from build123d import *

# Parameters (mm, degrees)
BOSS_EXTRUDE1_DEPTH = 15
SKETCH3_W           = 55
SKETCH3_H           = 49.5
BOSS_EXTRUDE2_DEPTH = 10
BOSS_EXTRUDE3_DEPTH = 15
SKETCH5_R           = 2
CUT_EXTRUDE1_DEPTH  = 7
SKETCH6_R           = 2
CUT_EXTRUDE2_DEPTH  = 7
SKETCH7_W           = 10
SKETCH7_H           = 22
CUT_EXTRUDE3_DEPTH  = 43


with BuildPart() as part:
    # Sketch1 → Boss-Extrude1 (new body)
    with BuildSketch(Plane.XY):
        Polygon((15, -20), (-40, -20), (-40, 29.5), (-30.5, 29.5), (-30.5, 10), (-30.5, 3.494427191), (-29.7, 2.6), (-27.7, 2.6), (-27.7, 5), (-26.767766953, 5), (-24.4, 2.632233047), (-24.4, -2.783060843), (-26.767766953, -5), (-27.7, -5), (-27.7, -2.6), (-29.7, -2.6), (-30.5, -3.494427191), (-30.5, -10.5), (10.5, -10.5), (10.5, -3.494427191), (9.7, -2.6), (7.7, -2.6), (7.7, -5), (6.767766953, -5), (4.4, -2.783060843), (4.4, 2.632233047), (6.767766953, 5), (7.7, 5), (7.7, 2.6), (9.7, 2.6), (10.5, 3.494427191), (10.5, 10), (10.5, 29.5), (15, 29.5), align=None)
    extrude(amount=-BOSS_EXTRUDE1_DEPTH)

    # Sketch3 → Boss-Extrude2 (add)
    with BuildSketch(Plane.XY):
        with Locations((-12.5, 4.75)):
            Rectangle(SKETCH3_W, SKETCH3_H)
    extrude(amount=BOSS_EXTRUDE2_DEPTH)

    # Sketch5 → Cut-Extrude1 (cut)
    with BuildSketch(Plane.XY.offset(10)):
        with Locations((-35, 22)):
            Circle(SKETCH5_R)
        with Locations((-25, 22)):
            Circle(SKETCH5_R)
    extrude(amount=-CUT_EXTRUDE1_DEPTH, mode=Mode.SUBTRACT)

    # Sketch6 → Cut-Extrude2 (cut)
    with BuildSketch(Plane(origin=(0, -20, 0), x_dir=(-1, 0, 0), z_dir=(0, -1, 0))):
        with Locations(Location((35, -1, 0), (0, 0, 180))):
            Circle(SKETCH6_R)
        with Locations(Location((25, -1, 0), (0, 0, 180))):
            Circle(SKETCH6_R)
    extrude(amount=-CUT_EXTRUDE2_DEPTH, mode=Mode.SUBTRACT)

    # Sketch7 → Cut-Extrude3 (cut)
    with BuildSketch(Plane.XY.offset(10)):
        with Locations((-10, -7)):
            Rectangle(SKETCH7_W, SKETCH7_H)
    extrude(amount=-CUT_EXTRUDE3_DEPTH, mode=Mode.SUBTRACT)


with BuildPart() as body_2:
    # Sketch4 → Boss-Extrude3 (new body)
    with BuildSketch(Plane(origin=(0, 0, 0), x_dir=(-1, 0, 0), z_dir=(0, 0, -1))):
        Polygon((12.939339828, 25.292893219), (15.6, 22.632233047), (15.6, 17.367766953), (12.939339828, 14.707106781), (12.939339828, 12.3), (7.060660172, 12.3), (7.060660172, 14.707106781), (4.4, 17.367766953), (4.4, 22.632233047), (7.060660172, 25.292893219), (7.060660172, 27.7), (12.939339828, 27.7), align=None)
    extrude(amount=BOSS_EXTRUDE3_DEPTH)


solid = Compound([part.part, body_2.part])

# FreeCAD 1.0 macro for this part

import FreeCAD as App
import Part
import Sketcher
from FreeCAD import Vector

doc = App.newDocument("Part")
params = doc.addObject("Spreadsheet::Sheet", "Params")
for row, (alias, value) in enumerate([
    ("sketch1_width", "55 mm"),
    ("sketch1_width2", "2 mm"),
    ("sketch1_width3", "41 mm"),
    ("sketch1_width4", "4.5 mm"),
    ("sketch1_height", "49.5 mm"),
    ("pad1_length", "15 mm"),
    ("sketch2_width", "55 mm"),
    ("sketch2_height", "49.5 mm"),
    ("pad2_length", "10 mm"),
    ("sketch3_diameter", "4 mm"),
    ("pocket1_length", "7 mm"),
    ("sketch4_diameter", "4 mm"),
    ("pocket2_length", "7 mm"),
    ("sketch5_width", "10 mm"),
    ("sketch5_height", "22 mm"),
    ("pocket3_length", "43 mm"),
    ("pad3_length", "15 mm"),
], start=1):
    params.set(f"A{row}", alias)
    params.set(f"B{row}", "=" + value)
    params.setAlias(f"B{row}", alias)

body = doc.addObject("PartDesign::Body", "Body")

sketch1 = body.newObject("Sketcher::SketchObject", "Sketch")
sketch1.AttachmentSupport = (doc.getObject("XY_Plane"), [""])
sketch1.MapMode = "FlatFace"
sketch1.addGeometry([
    Part.LineSegment(Vector(-40, -20, 0), Vector(15, -20, 0)),
    Part.LineSegment(Vector(15, -20, 0), Vector(15, 29.5, 0)),
    Part.LineSegment(Vector(15, 29.5, 0), Vector(10.5, 29.5, 0)),
    Part.LineSegment(Vector(10.5, 29.5, 0), Vector(10.5, 3.5, 0)),
    Part.LineSegment(Vector(10.5, 3.5, 0), Vector(9.7, 2.6, 0)),
    Part.LineSegment(Vector(9.7, 2.6, 0), Vector(7.7, 2.6, 0)),
    Part.LineSegment(Vector(7.7, 2.6, 0), Vector(7.7, 5, 0)),
    Part.LineSegment(Vector(7.7, 5, 0), Vector(6.8, 5, 0)),
    Part.LineSegment(Vector(6.8, 5, 0), Vector(4.4, 2.6, 0)),
    Part.LineSegment(Vector(4.4, 2.6, 0), Vector(4.4, -2.8, 0)),
    Part.LineSegment(Vector(4.4, -2.8, 0), Vector(6.8, -5, 0)),
    Part.LineSegment(Vector(6.8, -5, 0), Vector(7.7, -5, 0)),
    Part.LineSegment(Vector(7.7, -5, 0), Vector(7.7, -2.6, 0)),
    Part.LineSegment(Vector(7.7, -2.6, 0), Vector(9.7, -2.6, 0)),
    Part.LineSegment(Vector(9.7, -2.6, 0), Vector(10.5, -3.5, 0)),
    Part.LineSegment(Vector(10.5, -3.5, 0), Vector(10.5, -10.5, 0)),
    Part.LineSegment(Vector(10.5, -10.5, 0), Vector(-30.5, -10.5, 0)),
    Part.LineSegment(Vector(-30.5, -10.5, 0), Vector(-30.5, -3.5, 0)),
    Part.LineSegment(Vector(-30.5, -3.5, 0), Vector(-29.7, -2.6, 0)),
    Part.LineSegment(Vector(-29.7, -2.6, 0), Vector(-27.7, -2.6, 0)),
    Part.LineSegment(Vector(-27.7, -2.6, 0), Vector(-27.7, -5, 0)),
    Part.LineSegment(Vector(-27.7, -5, 0), Vector(-26.8, -5, 0)),
    Part.LineSegment(Vector(-26.8, -5, 0), Vector(-24.4, -2.8, 0)),
    Part.LineSegment(Vector(-24.4, -2.8, 0), Vector(-24.4, 2.6, 0)),
    Part.LineSegment(Vector(-24.4, 2.6, 0), Vector(-26.8, 5, 0)),
    Part.LineSegment(Vector(-26.8, 5, 0), Vector(-27.7, 5, 0)),
    Part.LineSegment(Vector(-27.7, 5, 0), Vector(-27.7, 2.6, 0)),
    Part.LineSegment(Vector(-27.7, 2.6, 0), Vector(-29.7, 2.6, 0)),
    Part.LineSegment(Vector(-29.7, 2.6, 0), Vector(-30.5, 3.5, 0)),
    Part.LineSegment(Vector(-30.5, 3.5, 0), Vector(-30.5, 29.5, 0)),
    Part.LineSegment(Vector(-30.5, 29.5, 0), Vector(-40, 29.5, 0)),
    Part.LineSegment(Vector(-40, 29.5, 0), Vector(-40, -20, 0)),
], False)
sketch1.addConstraint([
    Sketcher.Constraint("Coincident", 0, 2, 1, 1),
    Sketcher.Constraint("Coincident", 1, 2, 2, 1),
    Sketcher.Constraint("Coincident", 2, 2, 3, 1),
    Sketcher.Constraint("Coincident", 3, 2, 4, 1),
    Sketcher.Constraint("Coincident", 4, 2, 5, 1),
    Sketcher.Constraint("Coincident", 5, 2, 6, 1),
    Sketcher.Constraint("Coincident", 6, 2, 7, 1),
    Sketcher.Constraint("Coincident", 7, 2, 8, 1),
    Sketcher.Constraint("Coincident", 8, 2, 9, 1),
    Sketcher.Constraint("Coincident", 9, 2, 10, 1),
    Sketcher.Constraint("Coincident", 10, 2, 11, 1),
    Sketcher.Constraint("Coincident", 11, 2, 12, 1),
    Sketcher.Constraint("Coincident", 12, 2, 13, 1),
    Sketcher.Constraint("Coincident", 13, 2, 14, 1),
    Sketcher.Constraint("Coincident", 14, 2, 15, 1),
    Sketcher.Constraint("Coincident", 15, 2, 16, 1),
    Sketcher.Constraint("Coincident", 16, 2, 17, 1),
    Sketcher.Constraint("Coincident", 17, 2, 18, 1),
    Sketcher.Constraint("Coincident", 18, 2, 19, 1),
    Sketcher.Constraint("Coincident", 19, 2, 20, 1),
    Sketcher.Constraint("Coincident", 20, 2, 21, 1),
    Sketcher.Constraint("Coincident", 21, 2, 22, 1),
    Sketcher.Constraint("Coincident", 22, 2, 23, 1),
    Sketcher.Constraint("Coincident", 23, 2, 24, 1),
    Sketcher.Constraint("Coincident", 24, 2, 25, 1),
    Sketcher.Constraint("Coincident", 25, 2, 26, 1),
    Sketcher.Constraint("Coincident", 26, 2, 27, 1),
    Sketcher.Constraint("Coincident", 27, 2, 28, 1),
    Sketcher.Constraint("Coincident", 28, 2, 29, 1),
    Sketcher.Constraint("Coincident", 29, 2, 30, 1),
    Sketcher.Constraint("Coincident", 30, 2, 31, 1),
    Sketcher.Constraint("Coincident", 31, 2, 0, 1),
    Sketcher.Constraint("Horizontal", 0),
    Sketcher.Constraint("Vertical", 1),
    Sketcher.Constraint("Horizontal", 2),
    Sketcher.Constraint("Vertical", 3),
    Sketcher.Constraint("Horizontal", 5),
    Sketcher.Constraint("Vertical", 6),
    Sketcher.Constraint("Horizontal", 7),
    Sketcher.Constraint("Vertical", 9),
    Sketcher.Constraint("Horizontal", 11),
    Sketcher.Constraint("Vertical", 12),
    Sketcher.Constraint("Horizontal", 13),
    Sketcher.Constraint("Vertical", 15),
    Sketcher.Constraint("Horizontal", 16),
    Sketcher.Constraint("Vertical", 17),
    Sketcher.Constraint("Horizontal", 19),
    Sketcher.Constraint("Vertical", 20),
    Sketcher.Constraint("Horizontal", 21),
    Sketcher.Constraint("Vertical", 23),
    Sketcher.Constraint("Horizontal", 25),
    Sketcher.Constraint("Vertical", 26),
    Sketcher.Constraint("Horizontal", 27),
    Sketcher.Constraint("Vertical", 29),
    Sketcher.Constraint("Horizontal", 30),
    Sketcher.Constraint("Vertical", 31),
    Sketcher.Constraint("Symmetric", 7, 2, 10, 2, -1),
    Sketcher.Constraint("Symmetric", 5, 2, 12, 2, -1),
    Sketcher.Constraint("Symmetric", 3, 2, 14, 2, -1),
    Sketcher.Constraint("Symmetric", 21, 2, 24, 2, -1),
    Sketcher.Constraint("Symmetric", 19, 2, 26, 2, -1),
    Sketcher.Constraint("Symmetric", 17, 2, 28, 2, -1),
    Sketcher.Constraint("Parallel", 4, 18),
    Sketcher.Constraint("Perpendicular", 8, 24),
    Sketcher.Constraint("Parallel", 14, 28),
    Sketcher.Constraint("Horizontal", 14, 2, 17, 2),
    Sketcher.Constraint("Horizontal", 13, 2, 18, 2),
    Sketcher.Constraint("Horizontal", 11, 2, 20, 2),
    Sketcher.Constraint("Horizontal", 9, 2, 22, 2),
    Sketcher.Constraint("Horizontal", 8, 2, 23, 2),
    Sketcher.Constraint("Horizontal", 2, 2, 29, 2),
    Sketcher.Constraint("Vertical", 4, 2, 13, 2),
    Sketcher.Constraint("Equal", 13, 19),
    Sketcher.Constraint("Equal", 11, 21),
    Sketcher.Constraint("Equal", 10, 22),
    Sketcher.Constraint("DistanceX", 0, 1, 0, 2, 55.0),
    Sketcher.Constraint("DistanceX", 5, 2, 5, 1, 2.0),
    Sketcher.Constraint("DistanceX", 16, 2, 16, 1, 41.0),
    Sketcher.Constraint("DistanceX", 2, 2, 2, 1, 4.5),
    Sketcher.Constraint("DistanceY", 1, 1, 1, 2, 49.5),
    Sketcher.Constraint("DistanceY", 6, 1, 6, 2, 2.4),
    Sketcher.Constraint("DistanceX", -1, 1, 0, 2, 15.0),
    Sketcher.Constraint("DistanceY", 0, 2, -1, 1, 20.0),
    Sketcher.Constraint("DistanceY", -1, 1, 6, 2, 5.0),
    Sketcher.Constraint("Distance", 4, 1.2),
    Sketcher.Constraint("DistanceX", -1, 1, 4, 2, 9.7),
    Sketcher.Constraint("DistanceX", -1, 1, 8, 2, 4.4),
    Sketcher.Constraint("DistanceY", 15, 2, -1, 1, 10.5),
    Sketcher.Constraint("Distance", 8, 3.348528),
    Sketcher.Constraint("Distance", 10, 3.243631),
])
sketch1.setExpression("Constraints[75]", "Params.sketch1_width")
sketch1.setExpression("Constraints[76]", "Params.sketch1_width2")
sketch1.setExpression("Constraints[77]", "Params.sketch1_width3")
sketch1.setExpression("Constraints[78]", "Params.sketch1_width4")
sketch1.setExpression("Constraints[79]", "Params.sketch1_height")
pad1 = body.newObject("PartDesign::Pad", "Pad")
pad1.Profile = sketch1
pad1.setExpression("Length", "Params.pad1_length")
pad1.Reversed = True

sketch2 = body.newObject("Sketcher::SketchObject", "Sketch001")
sketch2.AttachmentSupport = (doc.getObject("XY_Plane"), [""])
sketch2.MapMode = "FlatFace"
sketch2.addGeometry([
    Part.LineSegment(Vector(-40, 30, 0), Vector(-40, -20, 0)),
    Part.LineSegment(Vector(-40, -20, 0), Vector(15, -20, 0)),
    Part.LineSegment(Vector(15, -20, 0), Vector(15, 30, 0)),
    Part.LineSegment(Vector(15, 30, 0), Vector(-40, 30, 0)),
], False)
sketch2.addConstraint([
    Sketcher.Constraint("Coincident", 0, 2, 1, 1),
    Sketcher.Constraint("Coincident", 1, 2, 2, 1),
    Sketcher.Constraint("Coincident", 2, 2, 3, 1),
    Sketcher.Constraint("Coincident", 3, 2, 0, 1),
    Sketcher.Constraint("Vertical", 0),
    Sketcher.Constraint("Horizontal", 1),
    Sketcher.Constraint("Vertical", 2),
    Sketcher.Constraint("Horizontal", 3),
    Sketcher.Constraint("DistanceX", 1, 1, 1, 2, 55.0),
    Sketcher.Constraint("DistanceY", 0, 2, 0, 1, 49.5),
    Sketcher.Constraint("DistanceX", 0, 2, -1, 1, 40.0),
    Sketcher.Constraint("DistanceY", 0, 2, -1, 1, 20.0),
])
sketch2.setExpression("Constraints[8]", "Params.sketch2_width")
sketch2.setExpression("Constraints[9]", "Params.sketch2_height")
pad2 = body.newObject("PartDesign::Pad", "Pad001")
pad2.Profile = sketch2
pad2.setExpression("Length", "Params.pad2_length")

sketch3 = body.newObject("Sketcher::SketchObject", "Sketch002")
sketch3.AttachmentSupport = (doc.getObject("XY_Plane"), [""])
sketch3.MapMode = "FlatFace"
sketch3.AttachmentOffset = App.Placement(Vector(0, 0, 10), App.Rotation())
sketch3.addGeometry([
    Part.Circle(Vector(-35, 22, 0), Vector(0, 0, 1), 2),
    Part.Circle(Vector(-25, 22, 0), Vector(0, 0, 1), 2),
], False)
sketch3.addConstraint([
    Sketcher.Constraint("Equal", 0, 1),
    Sketcher.Constraint("Horizontal", 0, 3, 1, 3),
    Sketcher.Constraint("Diameter", 0, 4.0),
    Sketcher.Constraint("DistanceX", 0, 3, -1, 1, 35.0),
    Sketcher.Constraint("DistanceY", -1, 1, 0, 3, 22.0),
    Sketcher.Constraint("DistanceX", 1, 3, -1, 1, 25.0),
])
sketch3.setExpression("Constraints[2]", "Params.sketch3_diameter")
pocket1 = body.newObject("PartDesign::Pocket", "Pocket")
pocket1.Profile = sketch3
pocket1.setExpression("Length", "Params.pocket1_length")

sketch4 = body.newObject("Sketcher::SketchObject", "Sketch003")
sketch4.AttachmentSupport = (doc.getObject("XZ_Plane"), [""])
sketch4.MapMode = "FlatFace"
sketch4.AttachmentOffset = App.Placement(Vector(0, 0, 20), App.Rotation())
sketch4.addGeometry([
    Part.Circle(Vector(-35, 1, 0), Vector(0, 0, 1), 2),
    Part.Circle(Vector(-25, 1, 0), Vector(0, 0, 1), 2),
], False)
sketch4.addConstraint([
    Sketcher.Constraint("Equal", 0, 1),
    Sketcher.Constraint("Horizontal", 0, 3, 1, 3),
    Sketcher.Constraint("Diameter", 0, 4.0),
    Sketcher.Constraint("DistanceX", 0, 3, -1, 1, 35.0),
    Sketcher.Constraint("DistanceY", -1, 1, 0, 3, 1.0),
    Sketcher.Constraint("DistanceX", 1, 3, -1, 1, 25.0),
])
sketch4.setExpression("Constraints[2]", "Params.sketch4_diameter")
pocket2 = body.newObject("PartDesign::Pocket", "Pocket001")
pocket2.Profile = sketch4
pocket2.setExpression("Length", "Params.pocket2_length")

sketch5 = body.newObject("Sketcher::SketchObject", "Sketch004")
sketch5.AttachmentSupport = (doc.getObject("XY_Plane"), [""])
sketch5.MapMode = "FlatFace"
sketch5.AttachmentOffset = App.Placement(Vector(0, 0, 10), App.Rotation())
sketch5.addGeometry([
    Part.LineSegment(Vector(-15, 4, 0), Vector(-15, -18, 0)),
    Part.LineSegment(Vector(-15, -18, 0), Vector(-5, -18, 0)),
    Part.LineSegment(Vector(-5, -18, 0), Vector(-5, 4, 0)),
    Part.LineSegment(Vector(-5, 4, 0), Vector(-15, 4, 0)),
], False)
sketch5.addConstraint([
    Sketcher.Constraint("Coincident", 0, 2, 1, 1),
    Sketcher.Constraint("Coincident", 1, 2, 2, 1),
    Sketcher.Constraint("Coincident", 2, 2, 3, 1),
    Sketcher.Constraint("Coincident", 3, 2, 0, 1),
    Sketcher.Constraint("Vertical", 0),
    Sketcher.Constraint("Horizontal", 1),
    Sketcher.Constraint("Vertical", 2),
    Sketcher.Constraint("Horizontal", 3),
    Sketcher.Constraint("DistanceX", 1, 1, 1, 2, 10.0),
    Sketcher.Constraint("DistanceY", 0, 2, 0, 1, 22.0),
    Sketcher.Constraint("DistanceX", 0, 2, -1, 1, 15.0),
    Sketcher.Constraint("DistanceY", 0, 2, -1, 1, 18.0),
])
sketch5.setExpression("Constraints[8]", "Params.sketch5_width")
sketch5.setExpression("Constraints[9]", "Params.sketch5_height")
pocket3 = body.newObject("PartDesign::Pocket", "Pocket002")
pocket3.Profile = sketch5
pocket3.setExpression("Length", "Params.pocket3_length")
body2 = doc.addObject("PartDesign::Body", "Body001")

sketch6 = body2.newObject("Sketcher::SketchObject", "Sketch005")
sketch6.AttachmentSupport = (doc.getObject("XY_Plane001"), [""])
sketch6.MapMode = "FlatFace"
sketch6.addGeometry([
    Part.LineSegment(Vector(-15.6, 22.6, 0), Vector(-12.9, 25.3, 0)),
    Part.LineSegment(Vector(-12.9, 25.3, 0), Vector(-12.9, 27.7, 0)),
    Part.LineSegment(Vector(-12.9, 27.7, 0), Vector(-7.1, 27.7, 0)),
    Part.LineSegment(Vector(-7.1, 27.7, 0), Vector(-7.1, 25.3, 0)),
    Part.LineSegment(Vector(-7.1, 25.3, 0), Vector(-4.4, 22.6, 0)),
    Part.LineSegment(Vector(-4.4, 22.6, 0), Vector(-4.4, 17.4, 0)),
    Part.LineSegment(Vector(-4.4, 17.4, 0), Vector(-7.1, 14.7, 0)),
    Part.LineSegment(Vector(-7.1, 14.7, 0), Vector(-7.1, 12.3, 0)),
    Part.LineSegment(Vector(-7.1, 12.3, 0), Vector(-12.9, 12.3, 0)),
    Part.LineSegment(Vector(-12.9, 12.3, 0), Vector(-12.9, 14.7, 0)),
    Part.LineSegment(Vector(-12.9, 14.7, 0), Vector(-15.6, 17.4, 0)),
    Part.LineSegment(Vector(-15.6, 17.4, 0), Vector(-15.6, 22.6, 0)),
], False)
sketch6.addConstraint([
    Sketcher.Constraint("Coincident", 0, 2, 1, 1),
    Sketcher.Constraint("Coincident", 1, 2, 2, 1),
    Sketcher.Constraint("Coincident", 2, 2, 3, 1),
    Sketcher.Constraint("Coincident", 3, 2, 4, 1),
    Sketcher.Constraint("Coincident", 4, 2, 5, 1),
    Sketcher.Constraint("Coincident", 5, 2, 6, 1),
    Sketcher.Constraint("Coincident", 6, 2, 7, 1),
    Sketcher.Constraint("Coincident", 7, 2, 8, 1),
    Sketcher.Constraint("Coincident", 8, 2, 9, 1),
    Sketcher.Constraint("Coincident", 9, 2, 10, 1),
    Sketcher.Constraint("Coincident", 10, 2, 11, 1),
    Sketcher.Constraint("Coincident", 11, 2, 0, 1),
    Sketcher.Constraint("Vertical", 1),
    Sketcher.Constraint("Horizontal", 2),
    Sketcher.Constraint("Vertical", 3),
    Sketcher.Constraint("Vertical", 5),
    Sketcher.Constraint("Vertical", 7),
    Sketcher.Constraint("Horizontal", 8),
    Sketcher.Constraint("Vertical", 9),
    Sketcher.Constraint("Vertical", 11),
    Sketcher.Constraint("Perpendicular", 0, 4),
    Sketcher.Constraint("Perpendicular", 4, 6),
    Sketcher.Constraint("Perpendicular", 6, 10),
    Sketcher.Constraint("Horizontal", 0, 2, 3, 2),
    Sketcher.Constraint("Horizontal", 6, 2, 9, 2),
    Sketcher.Constraint("Horizontal", 5, 2, 10, 2),
    Sketcher.Constraint("Horizontal", 4, 2, 11, 2),
    Sketcher.Constraint("Vertical", 3, 2, 6, 2),
    Sketcher.Constraint("Vertical", 1, 2, 8, 2),
    Sketcher.Constraint("Equal", 3, 7),
    Sketcher.Constraint("DistanceY", -1, 1, 1, 2, 27.7),
    Sketcher.Constraint("DistanceX", 4, 2, -1, 1, 4.4),
    Sketcher.Constraint("DistanceY", -1, 1, 7, 2, 12.3),
    Sketcher.Constraint("DistanceX", 10, 2, -1, 1, 15.6),
    Sketcher.Constraint("DistanceX", 2, 1, 2, 2, 5.87868),
    Sketcher.Constraint("DistanceY", 1, 1, 1, 2, 2.407107),
])
pad3 = body2.newObject("PartDesign::Pad", "Pad002")
pad3.Profile = sketch6
pad3.setExpression("Length", "Params.pad3_length")
pad3.Reversed = True

doc.recompute()
